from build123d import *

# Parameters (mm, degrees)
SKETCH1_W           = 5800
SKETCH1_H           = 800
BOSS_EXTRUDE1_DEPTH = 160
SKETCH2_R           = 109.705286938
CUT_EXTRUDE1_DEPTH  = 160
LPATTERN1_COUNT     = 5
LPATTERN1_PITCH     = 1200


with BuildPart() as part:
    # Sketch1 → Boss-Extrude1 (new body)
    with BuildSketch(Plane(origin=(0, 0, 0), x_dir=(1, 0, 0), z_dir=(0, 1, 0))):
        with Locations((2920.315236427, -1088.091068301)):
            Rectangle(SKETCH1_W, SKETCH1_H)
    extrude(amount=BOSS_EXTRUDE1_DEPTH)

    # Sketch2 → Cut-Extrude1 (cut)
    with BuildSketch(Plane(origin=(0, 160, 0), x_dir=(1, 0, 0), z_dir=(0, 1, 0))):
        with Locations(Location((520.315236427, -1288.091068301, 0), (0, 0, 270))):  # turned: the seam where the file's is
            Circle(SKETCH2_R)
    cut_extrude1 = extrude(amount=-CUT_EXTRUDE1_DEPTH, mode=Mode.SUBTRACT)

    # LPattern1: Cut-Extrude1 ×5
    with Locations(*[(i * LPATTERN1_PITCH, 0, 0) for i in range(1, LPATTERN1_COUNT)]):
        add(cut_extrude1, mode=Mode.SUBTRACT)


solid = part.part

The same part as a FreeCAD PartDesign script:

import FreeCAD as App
import Part
import Sketcher


def add_polygon(sketch, points):
    """Adds a closed chain of lines whose ends are joined by coincident constraints."""
    first, n = sketch.GeometryCount, len(points)
    for a, b in zip(points, points[1:] + points[:1]):
        sketch.addGeometry(Part.LineSegment(App.Vector(*a, 0), App.Vector(*b, 0)), False)
    for i in range(n):
        sketch.addConstraint(Sketcher.Constraint("Coincident", first + i, 2, first + (i + 1) % n, 1))

doc = App.newDocument("Part")
body = doc.addObject("PartDesign::Body", "Body")

# Sketch on XZ plane
sketch1 = body.newObject("Sketcher::SketchObject", "Sketch")
sketch1.AttachmentSupport = (doc.getObject("XZ_Plane"), [""])
sketch1.MapMode = "FlatFace"
add_polygon(sketch1, [(20, 688), (20, 1488), (5820, 1488), (5820, 688)])  # lines 0-3
sketch1.addConstraint(Sketcher.Constraint("Vertical", 0))
sketch1.addConstraint(Sketcher.Constraint("Horizontal", 1))
sketch1.addConstraint(Sketcher.Constraint("Vertical", 2))
sketch1.addConstraint(Sketcher.Constraint("Horizontal", 3))
sketch1.addConstraint(Sketcher.Constraint("DistanceX", 1, 1, 1, 2, 5800.0))
sketch1.addConstraint(Sketcher.Constraint("DistanceY", 0, 1, 0, 2, 800.0))
sketch1.addConstraint(Sketcher.Constraint("DistanceY", -1, 1, 0, 2, 1488.091068))
sketch1.addConstraint(Sketcher.Constraint("DistanceX", -1, 1, 0, 2, 20.315236))
pad1 = body.newObject("PartDesign::Pad", "Pad")
pad1.Profile = sketch1
pad1.Length = 160
pad1.Reversed = True

# Sketch on XZ plane
sketch2 = body.newObject("Sketcher::SketchObject", "Sketch001")
sketch2.AttachmentSupport = (doc.getObject("XZ_Plane"), [""])
sketch2.MapMode = "FlatFace"
sketch2.AttachmentOffset = App.Placement(App.Vector(0, 0, -160), App.Rotation())
sketch2.addGeometry(Part.Circle(App.Vector(520, 1288, 0), App.Vector(0, 0, 1), 110), False)
sketch2.addConstraint(Sketcher.Constraint("Diameter", 0, 219.410574))
sketch2.addConstraint(Sketcher.Constraint("DistanceY", -1, 1, 0, 3, 1288.091068))
sketch2.addConstraint(Sketcher.Constraint("DistanceX", -1, 1, 0, 3, 520.315236))
pocket1 = body.newObject("PartDesign::Pocket", "Pocket")
pocket1.Profile = sketch2
pocket1.Length = 160
pocket1.Reversed = True
doc.recompute()

linearpattern = body.newObject("PartDesign::LinearPattern", "LinearPattern")
linearpattern.Originals = [pocket1]
linearpattern.Direction = (doc.getObject("X_Axis"), [""])
linearpattern.Mode = "offset"
linearpattern.Offset = 1200
linearpattern.Occurrences = 5
body.Tip = linearpattern

doc.recompute()
